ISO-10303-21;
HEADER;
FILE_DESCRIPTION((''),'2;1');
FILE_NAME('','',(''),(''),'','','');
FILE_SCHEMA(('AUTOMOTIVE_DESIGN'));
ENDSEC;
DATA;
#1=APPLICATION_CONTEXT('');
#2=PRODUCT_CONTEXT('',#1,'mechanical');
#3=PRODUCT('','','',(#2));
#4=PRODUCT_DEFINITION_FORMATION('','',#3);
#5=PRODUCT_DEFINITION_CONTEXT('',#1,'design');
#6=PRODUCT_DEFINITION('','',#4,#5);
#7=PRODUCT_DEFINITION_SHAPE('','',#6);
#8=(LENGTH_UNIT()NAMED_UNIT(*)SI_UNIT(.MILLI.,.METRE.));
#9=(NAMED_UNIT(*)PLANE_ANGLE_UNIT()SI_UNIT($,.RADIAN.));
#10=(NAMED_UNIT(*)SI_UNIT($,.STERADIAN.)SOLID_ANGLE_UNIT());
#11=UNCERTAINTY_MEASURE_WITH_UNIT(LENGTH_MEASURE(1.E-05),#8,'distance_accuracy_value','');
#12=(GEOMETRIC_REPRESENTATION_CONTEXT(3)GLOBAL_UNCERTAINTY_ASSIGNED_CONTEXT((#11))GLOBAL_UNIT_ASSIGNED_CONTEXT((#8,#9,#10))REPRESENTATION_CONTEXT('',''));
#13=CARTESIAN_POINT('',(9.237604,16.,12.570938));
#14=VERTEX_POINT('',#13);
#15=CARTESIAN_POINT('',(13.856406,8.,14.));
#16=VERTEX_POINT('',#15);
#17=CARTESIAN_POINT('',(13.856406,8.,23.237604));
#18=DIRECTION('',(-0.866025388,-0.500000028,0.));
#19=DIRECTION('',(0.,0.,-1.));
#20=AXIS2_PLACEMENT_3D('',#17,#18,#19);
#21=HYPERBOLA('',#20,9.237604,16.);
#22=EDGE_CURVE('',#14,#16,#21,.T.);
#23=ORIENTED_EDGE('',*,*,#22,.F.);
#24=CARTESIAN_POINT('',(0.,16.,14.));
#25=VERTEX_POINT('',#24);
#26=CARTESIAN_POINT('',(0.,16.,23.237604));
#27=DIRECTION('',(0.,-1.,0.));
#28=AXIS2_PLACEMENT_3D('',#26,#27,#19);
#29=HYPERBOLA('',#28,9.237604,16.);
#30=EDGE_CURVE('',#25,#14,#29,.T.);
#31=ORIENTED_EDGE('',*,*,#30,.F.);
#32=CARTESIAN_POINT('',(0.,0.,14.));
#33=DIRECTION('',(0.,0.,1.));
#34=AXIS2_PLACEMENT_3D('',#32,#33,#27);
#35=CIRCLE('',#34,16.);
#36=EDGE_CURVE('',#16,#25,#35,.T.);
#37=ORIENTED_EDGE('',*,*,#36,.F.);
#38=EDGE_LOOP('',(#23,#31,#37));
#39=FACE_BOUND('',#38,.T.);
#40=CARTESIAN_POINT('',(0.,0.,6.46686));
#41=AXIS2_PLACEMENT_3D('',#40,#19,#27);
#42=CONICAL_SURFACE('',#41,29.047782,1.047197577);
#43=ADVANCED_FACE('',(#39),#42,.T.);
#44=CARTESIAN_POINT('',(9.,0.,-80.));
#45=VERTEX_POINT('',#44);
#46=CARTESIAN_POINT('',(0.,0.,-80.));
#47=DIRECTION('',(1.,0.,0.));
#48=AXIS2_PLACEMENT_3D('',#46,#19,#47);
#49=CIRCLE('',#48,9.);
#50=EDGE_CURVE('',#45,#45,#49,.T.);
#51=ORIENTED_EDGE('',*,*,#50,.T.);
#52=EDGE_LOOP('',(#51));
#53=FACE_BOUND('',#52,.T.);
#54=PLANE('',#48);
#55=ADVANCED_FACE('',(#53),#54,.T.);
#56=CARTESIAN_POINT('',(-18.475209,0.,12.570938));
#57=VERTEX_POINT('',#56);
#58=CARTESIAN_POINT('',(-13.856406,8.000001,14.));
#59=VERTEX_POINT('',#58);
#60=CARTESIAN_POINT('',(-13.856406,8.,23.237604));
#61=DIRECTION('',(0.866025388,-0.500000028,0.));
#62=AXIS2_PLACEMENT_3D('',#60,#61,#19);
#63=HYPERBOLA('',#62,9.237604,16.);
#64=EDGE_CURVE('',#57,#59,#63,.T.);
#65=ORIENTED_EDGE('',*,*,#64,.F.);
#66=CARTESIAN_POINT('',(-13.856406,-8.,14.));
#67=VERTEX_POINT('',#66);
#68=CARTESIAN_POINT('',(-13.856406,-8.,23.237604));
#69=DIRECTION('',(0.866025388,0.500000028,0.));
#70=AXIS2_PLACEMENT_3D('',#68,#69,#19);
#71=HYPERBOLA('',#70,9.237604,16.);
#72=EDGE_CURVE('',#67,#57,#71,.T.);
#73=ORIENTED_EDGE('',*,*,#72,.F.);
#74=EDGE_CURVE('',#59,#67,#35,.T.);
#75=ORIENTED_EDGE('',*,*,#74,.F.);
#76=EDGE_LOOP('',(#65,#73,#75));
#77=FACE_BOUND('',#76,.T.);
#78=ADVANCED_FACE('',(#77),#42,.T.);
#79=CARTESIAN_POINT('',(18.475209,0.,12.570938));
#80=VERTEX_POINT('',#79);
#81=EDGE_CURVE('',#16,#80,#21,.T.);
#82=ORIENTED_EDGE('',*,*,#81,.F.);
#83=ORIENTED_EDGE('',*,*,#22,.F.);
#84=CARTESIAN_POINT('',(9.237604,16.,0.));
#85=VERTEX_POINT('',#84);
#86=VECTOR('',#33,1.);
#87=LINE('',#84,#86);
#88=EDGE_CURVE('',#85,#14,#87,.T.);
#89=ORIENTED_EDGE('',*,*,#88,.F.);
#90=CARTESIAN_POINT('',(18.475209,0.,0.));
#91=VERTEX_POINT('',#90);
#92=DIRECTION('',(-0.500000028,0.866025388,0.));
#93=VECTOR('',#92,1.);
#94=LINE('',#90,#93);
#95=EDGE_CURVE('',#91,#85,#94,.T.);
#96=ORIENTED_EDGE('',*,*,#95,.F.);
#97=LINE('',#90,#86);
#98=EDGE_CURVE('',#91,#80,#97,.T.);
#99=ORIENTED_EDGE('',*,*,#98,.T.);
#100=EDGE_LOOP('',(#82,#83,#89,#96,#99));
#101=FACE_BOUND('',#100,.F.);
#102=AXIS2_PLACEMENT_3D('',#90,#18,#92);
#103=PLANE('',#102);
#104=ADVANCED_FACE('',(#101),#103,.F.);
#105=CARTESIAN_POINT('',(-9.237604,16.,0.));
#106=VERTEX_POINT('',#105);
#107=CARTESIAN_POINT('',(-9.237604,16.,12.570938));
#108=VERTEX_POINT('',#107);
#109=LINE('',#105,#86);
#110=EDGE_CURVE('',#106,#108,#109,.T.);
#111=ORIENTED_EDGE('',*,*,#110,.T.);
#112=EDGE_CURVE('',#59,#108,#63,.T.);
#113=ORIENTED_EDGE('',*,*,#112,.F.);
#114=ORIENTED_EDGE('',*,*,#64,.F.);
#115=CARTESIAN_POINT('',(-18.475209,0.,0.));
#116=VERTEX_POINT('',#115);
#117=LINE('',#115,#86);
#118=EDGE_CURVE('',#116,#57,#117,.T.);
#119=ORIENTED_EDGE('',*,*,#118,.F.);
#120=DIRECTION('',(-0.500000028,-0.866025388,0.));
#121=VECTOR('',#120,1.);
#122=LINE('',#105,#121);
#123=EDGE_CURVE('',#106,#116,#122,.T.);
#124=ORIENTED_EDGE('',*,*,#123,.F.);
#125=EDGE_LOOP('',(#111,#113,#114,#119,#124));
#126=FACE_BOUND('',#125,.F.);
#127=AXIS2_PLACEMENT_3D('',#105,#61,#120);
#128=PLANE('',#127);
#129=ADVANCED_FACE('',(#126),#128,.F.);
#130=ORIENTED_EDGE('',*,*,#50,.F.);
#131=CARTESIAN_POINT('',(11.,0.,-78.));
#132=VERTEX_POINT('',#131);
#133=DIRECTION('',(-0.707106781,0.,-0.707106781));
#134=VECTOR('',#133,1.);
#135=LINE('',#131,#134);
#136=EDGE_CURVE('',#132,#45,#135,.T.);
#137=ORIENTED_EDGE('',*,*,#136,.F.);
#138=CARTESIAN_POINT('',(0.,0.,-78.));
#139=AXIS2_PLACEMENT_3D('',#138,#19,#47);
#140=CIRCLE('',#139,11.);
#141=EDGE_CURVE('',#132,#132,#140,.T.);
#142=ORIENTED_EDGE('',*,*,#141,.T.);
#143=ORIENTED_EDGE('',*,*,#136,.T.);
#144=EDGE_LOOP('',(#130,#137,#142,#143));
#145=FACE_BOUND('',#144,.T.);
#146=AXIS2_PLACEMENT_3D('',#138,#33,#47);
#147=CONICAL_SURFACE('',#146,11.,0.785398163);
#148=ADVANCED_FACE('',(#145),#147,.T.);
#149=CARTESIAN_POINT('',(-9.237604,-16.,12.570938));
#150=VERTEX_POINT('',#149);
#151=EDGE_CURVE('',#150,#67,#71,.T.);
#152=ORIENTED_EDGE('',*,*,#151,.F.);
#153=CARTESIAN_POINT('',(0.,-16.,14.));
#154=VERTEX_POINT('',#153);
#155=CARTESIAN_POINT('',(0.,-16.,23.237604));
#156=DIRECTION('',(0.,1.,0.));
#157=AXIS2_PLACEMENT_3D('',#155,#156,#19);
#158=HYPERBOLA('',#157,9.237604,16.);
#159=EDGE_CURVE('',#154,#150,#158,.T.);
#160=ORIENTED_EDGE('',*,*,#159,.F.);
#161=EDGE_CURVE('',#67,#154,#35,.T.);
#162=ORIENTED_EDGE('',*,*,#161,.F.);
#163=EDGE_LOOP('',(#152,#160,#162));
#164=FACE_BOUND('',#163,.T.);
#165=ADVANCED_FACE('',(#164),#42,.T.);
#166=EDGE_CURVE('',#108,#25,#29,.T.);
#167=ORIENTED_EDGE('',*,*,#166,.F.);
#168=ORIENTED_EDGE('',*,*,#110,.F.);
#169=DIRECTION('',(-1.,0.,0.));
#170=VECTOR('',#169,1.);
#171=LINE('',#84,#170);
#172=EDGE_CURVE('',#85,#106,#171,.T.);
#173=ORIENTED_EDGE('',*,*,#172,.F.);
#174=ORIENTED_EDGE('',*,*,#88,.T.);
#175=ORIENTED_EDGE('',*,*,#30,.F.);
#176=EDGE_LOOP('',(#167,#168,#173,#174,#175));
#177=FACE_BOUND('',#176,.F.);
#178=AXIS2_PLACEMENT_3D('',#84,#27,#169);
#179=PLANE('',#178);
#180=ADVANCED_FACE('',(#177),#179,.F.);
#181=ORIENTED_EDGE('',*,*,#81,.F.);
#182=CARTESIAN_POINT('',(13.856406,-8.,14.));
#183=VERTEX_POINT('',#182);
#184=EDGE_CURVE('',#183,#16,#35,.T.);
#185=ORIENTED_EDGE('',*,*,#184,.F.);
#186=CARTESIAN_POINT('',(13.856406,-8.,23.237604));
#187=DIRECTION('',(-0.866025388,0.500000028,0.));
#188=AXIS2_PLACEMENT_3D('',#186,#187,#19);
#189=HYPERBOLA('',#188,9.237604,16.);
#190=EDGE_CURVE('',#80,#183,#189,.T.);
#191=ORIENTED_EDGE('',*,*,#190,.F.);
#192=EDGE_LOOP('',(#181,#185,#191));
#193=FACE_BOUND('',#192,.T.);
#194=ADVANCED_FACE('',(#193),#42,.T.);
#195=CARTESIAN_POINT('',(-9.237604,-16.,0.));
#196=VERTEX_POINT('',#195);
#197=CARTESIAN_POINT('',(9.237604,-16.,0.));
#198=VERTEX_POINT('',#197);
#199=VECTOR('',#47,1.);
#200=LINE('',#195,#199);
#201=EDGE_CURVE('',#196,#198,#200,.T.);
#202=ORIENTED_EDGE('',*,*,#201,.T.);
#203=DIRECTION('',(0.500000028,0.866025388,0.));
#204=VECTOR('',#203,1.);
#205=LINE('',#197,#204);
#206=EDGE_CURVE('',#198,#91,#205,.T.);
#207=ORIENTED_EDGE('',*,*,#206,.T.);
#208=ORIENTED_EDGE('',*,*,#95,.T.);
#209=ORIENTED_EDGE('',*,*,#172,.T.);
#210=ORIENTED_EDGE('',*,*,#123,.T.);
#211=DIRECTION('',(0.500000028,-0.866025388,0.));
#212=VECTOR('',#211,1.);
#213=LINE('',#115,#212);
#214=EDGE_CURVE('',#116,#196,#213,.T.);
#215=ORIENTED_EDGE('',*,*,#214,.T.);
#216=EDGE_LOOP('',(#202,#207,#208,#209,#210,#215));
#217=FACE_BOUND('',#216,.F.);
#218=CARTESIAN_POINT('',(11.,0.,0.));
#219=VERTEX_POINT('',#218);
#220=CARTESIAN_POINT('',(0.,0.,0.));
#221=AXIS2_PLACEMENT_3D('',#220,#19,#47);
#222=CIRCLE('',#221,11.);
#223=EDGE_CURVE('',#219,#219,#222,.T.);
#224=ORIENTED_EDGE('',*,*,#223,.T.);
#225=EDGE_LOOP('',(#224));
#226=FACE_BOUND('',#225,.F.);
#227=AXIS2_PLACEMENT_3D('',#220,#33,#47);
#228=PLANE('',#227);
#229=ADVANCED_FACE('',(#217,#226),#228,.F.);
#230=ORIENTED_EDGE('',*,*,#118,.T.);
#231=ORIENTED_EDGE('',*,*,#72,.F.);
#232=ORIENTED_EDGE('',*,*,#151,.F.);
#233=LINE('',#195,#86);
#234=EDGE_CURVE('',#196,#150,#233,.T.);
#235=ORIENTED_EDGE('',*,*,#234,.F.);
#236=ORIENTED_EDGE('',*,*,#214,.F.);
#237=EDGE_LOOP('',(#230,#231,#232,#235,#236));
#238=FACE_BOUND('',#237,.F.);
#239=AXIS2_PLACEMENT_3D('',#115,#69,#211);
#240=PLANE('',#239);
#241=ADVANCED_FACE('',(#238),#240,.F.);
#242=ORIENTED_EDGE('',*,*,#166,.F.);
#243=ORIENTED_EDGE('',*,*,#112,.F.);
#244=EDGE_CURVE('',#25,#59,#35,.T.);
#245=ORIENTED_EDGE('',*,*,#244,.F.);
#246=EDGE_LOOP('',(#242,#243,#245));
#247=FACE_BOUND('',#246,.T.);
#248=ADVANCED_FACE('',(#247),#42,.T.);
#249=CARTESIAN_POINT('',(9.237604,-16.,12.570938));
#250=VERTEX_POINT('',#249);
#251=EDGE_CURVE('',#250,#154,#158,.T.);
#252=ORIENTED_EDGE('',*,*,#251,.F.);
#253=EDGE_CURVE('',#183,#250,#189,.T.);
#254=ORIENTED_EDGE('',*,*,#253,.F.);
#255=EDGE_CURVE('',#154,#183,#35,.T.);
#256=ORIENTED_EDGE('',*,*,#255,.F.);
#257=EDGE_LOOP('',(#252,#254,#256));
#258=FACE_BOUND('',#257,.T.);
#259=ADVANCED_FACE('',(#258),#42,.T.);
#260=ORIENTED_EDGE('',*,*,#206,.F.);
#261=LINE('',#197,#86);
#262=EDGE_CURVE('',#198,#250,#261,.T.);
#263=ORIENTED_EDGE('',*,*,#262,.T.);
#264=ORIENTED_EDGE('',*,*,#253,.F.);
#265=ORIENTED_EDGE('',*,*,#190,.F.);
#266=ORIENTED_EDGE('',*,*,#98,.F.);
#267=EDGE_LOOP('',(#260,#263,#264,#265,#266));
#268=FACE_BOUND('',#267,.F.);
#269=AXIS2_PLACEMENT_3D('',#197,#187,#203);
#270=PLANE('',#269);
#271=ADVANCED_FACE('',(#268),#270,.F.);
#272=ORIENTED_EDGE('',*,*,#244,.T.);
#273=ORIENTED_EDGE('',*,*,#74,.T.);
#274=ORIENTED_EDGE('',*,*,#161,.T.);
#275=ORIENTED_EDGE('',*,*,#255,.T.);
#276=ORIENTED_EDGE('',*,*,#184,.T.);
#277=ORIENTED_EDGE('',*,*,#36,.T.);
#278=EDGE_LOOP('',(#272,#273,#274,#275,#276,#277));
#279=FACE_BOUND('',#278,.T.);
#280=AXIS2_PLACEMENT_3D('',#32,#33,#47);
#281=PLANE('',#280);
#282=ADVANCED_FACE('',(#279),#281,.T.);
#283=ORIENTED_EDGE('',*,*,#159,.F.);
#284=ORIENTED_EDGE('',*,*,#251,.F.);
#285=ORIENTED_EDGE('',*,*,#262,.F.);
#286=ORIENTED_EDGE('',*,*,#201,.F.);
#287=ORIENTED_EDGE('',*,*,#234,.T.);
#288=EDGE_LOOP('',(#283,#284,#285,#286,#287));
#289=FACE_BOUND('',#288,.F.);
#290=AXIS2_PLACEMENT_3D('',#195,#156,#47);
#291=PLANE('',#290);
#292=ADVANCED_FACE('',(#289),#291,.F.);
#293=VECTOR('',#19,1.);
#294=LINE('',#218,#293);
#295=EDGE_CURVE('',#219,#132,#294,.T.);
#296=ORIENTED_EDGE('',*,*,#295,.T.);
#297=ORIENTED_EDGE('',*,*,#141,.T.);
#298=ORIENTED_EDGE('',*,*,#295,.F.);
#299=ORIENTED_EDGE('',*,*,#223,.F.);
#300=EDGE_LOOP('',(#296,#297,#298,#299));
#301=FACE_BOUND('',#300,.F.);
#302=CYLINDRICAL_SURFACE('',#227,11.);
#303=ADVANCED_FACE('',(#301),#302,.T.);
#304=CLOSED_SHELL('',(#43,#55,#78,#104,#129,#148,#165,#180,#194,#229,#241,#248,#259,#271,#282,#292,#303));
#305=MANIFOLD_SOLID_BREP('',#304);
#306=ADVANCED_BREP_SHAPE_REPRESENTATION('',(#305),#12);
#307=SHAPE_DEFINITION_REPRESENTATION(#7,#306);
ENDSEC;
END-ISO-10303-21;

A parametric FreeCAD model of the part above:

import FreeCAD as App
import Part
import Sketcher
Q = App.Units.Quantity


def edges_at(feature, points):
    """Names of the edges that pass closest to the given points."""
    edges = feature.Shape.Edges
    near = lambda p: min(range(len(edges)), key=lambda i: edges[i].distToShape(Part.Vertex(*p))[0])
    return sorted({f"Edge{near(p) + 1}" for p in points})


def add_polygon(sketch, points):
    """Adds a closed chain of lines whose ends are joined by coincident constraints."""
    first, n = sketch.GeometryCount, len(points)
    for a, b in zip(points, points[1:] + points[:1]):
        sketch.addGeometry(Part.LineSegment(App.Vector(*a, 0), App.Vector(*b, 0)), False)
    for i in range(n):
        sketch.addConstraint(Sketcher.Constraint("Coincident", first + i, 2, first + (i + 1) % n, 1))

doc = App.newDocument("Part")
params = doc.addObject("Spreadsheet::Sheet", "Params")
for row, (alias, value) in enumerate([
    ("pad1_length", "14 mm"),
    ("groove_angle", "360 deg"),
    ("sketch3_diameter", "22 mm"),
    ("pad2_length", "80 mm"),
    ("chamfer_size", "2 mm"),
], start=1):
    params.set(f"A{row}", alias)
    params.set(f"B{row}", "=" + value)
    params.setAlias(f"B{row}", alias)

body = doc.addObject("PartDesign::Body", "Body")

sketch1 = body.newObject("Sketcher::SketchObject", "Sketch")
sketch1.AttachmentSupport = (doc.getObject("XY_Plane"), [""])
sketch1.MapMode = "FlatFace"
add_polygon(sketch1, [(18, 0), (9, 16), (-9, 16), (-18, 0), (-9, -16), (9, -16)])
sketch1.addConstraint(Sketcher.Constraint("Horizontal", 1))
sketch1.addConstraint(Sketcher.Constraint("Horizontal", 4))
sketch1.addConstraint(Sketcher.Constraint("Symmetric", 0, 2, 3, 2, -1, 1))
sketch1.addConstraint(Sketcher.Constraint("Symmetric", 2, 2, 5, 2, -1, 1))
sketch1.addConstraint(Sketcher.Constraint("PointOnObject", 2, 2, -1))
sketch1.addConstraint(Sketcher.Constraint("Parallel", 2, 5))
sketch1.addConstraint(Sketcher.Constraint("Vertical", 1, 2, 3, 2))
sketch1.addConstraint(Sketcher.Constraint("Angle", 0, Q("120.000002 deg")))
sketch1.addConstraint(Sketcher.Constraint("DistanceY", -1, 1, 0, 2, 16.0))
sketch1.addConstraint(Sketcher.Constraint("DistanceX", 1, 2, 1, 1, 18.475208))
pad1 = body.newObject("PartDesign::Pad", "Pad")
pad1.Profile = sketch1
pad1.setExpression("Length", "Params.pad1_length")

sketch2 = body.newObject("Sketcher::SketchObject", "Sketch001")
sketch2.AttachmentSupport = (doc.getObject("YZ_Plane"), [""])
sketch2.MapMode = "FlatFace"
add_polygon(sketch2, [(-29, 6), (-16, 14), (-29, 14)])
sketch2.addConstraint(Sketcher.Constraint("Horizontal", 1))
sketch2.addConstraint(Sketcher.Constraint("Vertical", 2))
sketch2.addConstraint(Sketcher.Constraint("Angle", 0, Q("29.999999 deg")))
sketch2.addConstraint(Sketcher.Constraint("DistanceX", 0, 2, -1, 1, 16.0))
sketch2.addConstraint(Sketcher.Constraint("DistanceY", -1, 1, 0, 2, 14.0))
sketch2.addConstraint(Sketcher.Constraint("DistanceY", 2, 2, 2, 1, 7.53314))
groove = body.newObject("PartDesign::Groove", "Groove")
groove.Profile = sketch2
groove.ReferenceAxis = (sketch2, ["V_Axis"])
groove.setExpression("Angle", "Params.groove_angle")

sketch3 = body.newObject("Sketcher::SketchObject", "Sketch002")
sketch3.AttachmentSupport = (doc.getObject("XY_Plane"), [""])
sketch3.MapMode = "FlatFace"
sketch3.addGeometry(Part.Circle(App.Vector(0, 0, 0), App.Vector(0, 0, 1), 11), False)
sketch3.addConstraint(Sketcher.Constraint("Coincident", 0, 3, -1, 1))
sketch3.addConstraint(Sketcher.Constraint("Diameter", 0, 22.0))
sketch3.setExpression("Constraints[1]", "Params.sketch3_diameter")
pad2 = body.newObject("PartDesign::Pad", "Pad001")
pad2.Profile = sketch3
pad2.setExpression("Length", "Params.pad2_length")
pad2.Reversed = True
doc.recompute()

chamfer = body.newObject("PartDesign::Chamfer", "Chamfer")
chamfer.Base = (pad2, edges_at(pad2, [(-11, 0, -80)]))
chamfer.setExpression("Size", "Params.chamfer_size")

doc.recompute()
